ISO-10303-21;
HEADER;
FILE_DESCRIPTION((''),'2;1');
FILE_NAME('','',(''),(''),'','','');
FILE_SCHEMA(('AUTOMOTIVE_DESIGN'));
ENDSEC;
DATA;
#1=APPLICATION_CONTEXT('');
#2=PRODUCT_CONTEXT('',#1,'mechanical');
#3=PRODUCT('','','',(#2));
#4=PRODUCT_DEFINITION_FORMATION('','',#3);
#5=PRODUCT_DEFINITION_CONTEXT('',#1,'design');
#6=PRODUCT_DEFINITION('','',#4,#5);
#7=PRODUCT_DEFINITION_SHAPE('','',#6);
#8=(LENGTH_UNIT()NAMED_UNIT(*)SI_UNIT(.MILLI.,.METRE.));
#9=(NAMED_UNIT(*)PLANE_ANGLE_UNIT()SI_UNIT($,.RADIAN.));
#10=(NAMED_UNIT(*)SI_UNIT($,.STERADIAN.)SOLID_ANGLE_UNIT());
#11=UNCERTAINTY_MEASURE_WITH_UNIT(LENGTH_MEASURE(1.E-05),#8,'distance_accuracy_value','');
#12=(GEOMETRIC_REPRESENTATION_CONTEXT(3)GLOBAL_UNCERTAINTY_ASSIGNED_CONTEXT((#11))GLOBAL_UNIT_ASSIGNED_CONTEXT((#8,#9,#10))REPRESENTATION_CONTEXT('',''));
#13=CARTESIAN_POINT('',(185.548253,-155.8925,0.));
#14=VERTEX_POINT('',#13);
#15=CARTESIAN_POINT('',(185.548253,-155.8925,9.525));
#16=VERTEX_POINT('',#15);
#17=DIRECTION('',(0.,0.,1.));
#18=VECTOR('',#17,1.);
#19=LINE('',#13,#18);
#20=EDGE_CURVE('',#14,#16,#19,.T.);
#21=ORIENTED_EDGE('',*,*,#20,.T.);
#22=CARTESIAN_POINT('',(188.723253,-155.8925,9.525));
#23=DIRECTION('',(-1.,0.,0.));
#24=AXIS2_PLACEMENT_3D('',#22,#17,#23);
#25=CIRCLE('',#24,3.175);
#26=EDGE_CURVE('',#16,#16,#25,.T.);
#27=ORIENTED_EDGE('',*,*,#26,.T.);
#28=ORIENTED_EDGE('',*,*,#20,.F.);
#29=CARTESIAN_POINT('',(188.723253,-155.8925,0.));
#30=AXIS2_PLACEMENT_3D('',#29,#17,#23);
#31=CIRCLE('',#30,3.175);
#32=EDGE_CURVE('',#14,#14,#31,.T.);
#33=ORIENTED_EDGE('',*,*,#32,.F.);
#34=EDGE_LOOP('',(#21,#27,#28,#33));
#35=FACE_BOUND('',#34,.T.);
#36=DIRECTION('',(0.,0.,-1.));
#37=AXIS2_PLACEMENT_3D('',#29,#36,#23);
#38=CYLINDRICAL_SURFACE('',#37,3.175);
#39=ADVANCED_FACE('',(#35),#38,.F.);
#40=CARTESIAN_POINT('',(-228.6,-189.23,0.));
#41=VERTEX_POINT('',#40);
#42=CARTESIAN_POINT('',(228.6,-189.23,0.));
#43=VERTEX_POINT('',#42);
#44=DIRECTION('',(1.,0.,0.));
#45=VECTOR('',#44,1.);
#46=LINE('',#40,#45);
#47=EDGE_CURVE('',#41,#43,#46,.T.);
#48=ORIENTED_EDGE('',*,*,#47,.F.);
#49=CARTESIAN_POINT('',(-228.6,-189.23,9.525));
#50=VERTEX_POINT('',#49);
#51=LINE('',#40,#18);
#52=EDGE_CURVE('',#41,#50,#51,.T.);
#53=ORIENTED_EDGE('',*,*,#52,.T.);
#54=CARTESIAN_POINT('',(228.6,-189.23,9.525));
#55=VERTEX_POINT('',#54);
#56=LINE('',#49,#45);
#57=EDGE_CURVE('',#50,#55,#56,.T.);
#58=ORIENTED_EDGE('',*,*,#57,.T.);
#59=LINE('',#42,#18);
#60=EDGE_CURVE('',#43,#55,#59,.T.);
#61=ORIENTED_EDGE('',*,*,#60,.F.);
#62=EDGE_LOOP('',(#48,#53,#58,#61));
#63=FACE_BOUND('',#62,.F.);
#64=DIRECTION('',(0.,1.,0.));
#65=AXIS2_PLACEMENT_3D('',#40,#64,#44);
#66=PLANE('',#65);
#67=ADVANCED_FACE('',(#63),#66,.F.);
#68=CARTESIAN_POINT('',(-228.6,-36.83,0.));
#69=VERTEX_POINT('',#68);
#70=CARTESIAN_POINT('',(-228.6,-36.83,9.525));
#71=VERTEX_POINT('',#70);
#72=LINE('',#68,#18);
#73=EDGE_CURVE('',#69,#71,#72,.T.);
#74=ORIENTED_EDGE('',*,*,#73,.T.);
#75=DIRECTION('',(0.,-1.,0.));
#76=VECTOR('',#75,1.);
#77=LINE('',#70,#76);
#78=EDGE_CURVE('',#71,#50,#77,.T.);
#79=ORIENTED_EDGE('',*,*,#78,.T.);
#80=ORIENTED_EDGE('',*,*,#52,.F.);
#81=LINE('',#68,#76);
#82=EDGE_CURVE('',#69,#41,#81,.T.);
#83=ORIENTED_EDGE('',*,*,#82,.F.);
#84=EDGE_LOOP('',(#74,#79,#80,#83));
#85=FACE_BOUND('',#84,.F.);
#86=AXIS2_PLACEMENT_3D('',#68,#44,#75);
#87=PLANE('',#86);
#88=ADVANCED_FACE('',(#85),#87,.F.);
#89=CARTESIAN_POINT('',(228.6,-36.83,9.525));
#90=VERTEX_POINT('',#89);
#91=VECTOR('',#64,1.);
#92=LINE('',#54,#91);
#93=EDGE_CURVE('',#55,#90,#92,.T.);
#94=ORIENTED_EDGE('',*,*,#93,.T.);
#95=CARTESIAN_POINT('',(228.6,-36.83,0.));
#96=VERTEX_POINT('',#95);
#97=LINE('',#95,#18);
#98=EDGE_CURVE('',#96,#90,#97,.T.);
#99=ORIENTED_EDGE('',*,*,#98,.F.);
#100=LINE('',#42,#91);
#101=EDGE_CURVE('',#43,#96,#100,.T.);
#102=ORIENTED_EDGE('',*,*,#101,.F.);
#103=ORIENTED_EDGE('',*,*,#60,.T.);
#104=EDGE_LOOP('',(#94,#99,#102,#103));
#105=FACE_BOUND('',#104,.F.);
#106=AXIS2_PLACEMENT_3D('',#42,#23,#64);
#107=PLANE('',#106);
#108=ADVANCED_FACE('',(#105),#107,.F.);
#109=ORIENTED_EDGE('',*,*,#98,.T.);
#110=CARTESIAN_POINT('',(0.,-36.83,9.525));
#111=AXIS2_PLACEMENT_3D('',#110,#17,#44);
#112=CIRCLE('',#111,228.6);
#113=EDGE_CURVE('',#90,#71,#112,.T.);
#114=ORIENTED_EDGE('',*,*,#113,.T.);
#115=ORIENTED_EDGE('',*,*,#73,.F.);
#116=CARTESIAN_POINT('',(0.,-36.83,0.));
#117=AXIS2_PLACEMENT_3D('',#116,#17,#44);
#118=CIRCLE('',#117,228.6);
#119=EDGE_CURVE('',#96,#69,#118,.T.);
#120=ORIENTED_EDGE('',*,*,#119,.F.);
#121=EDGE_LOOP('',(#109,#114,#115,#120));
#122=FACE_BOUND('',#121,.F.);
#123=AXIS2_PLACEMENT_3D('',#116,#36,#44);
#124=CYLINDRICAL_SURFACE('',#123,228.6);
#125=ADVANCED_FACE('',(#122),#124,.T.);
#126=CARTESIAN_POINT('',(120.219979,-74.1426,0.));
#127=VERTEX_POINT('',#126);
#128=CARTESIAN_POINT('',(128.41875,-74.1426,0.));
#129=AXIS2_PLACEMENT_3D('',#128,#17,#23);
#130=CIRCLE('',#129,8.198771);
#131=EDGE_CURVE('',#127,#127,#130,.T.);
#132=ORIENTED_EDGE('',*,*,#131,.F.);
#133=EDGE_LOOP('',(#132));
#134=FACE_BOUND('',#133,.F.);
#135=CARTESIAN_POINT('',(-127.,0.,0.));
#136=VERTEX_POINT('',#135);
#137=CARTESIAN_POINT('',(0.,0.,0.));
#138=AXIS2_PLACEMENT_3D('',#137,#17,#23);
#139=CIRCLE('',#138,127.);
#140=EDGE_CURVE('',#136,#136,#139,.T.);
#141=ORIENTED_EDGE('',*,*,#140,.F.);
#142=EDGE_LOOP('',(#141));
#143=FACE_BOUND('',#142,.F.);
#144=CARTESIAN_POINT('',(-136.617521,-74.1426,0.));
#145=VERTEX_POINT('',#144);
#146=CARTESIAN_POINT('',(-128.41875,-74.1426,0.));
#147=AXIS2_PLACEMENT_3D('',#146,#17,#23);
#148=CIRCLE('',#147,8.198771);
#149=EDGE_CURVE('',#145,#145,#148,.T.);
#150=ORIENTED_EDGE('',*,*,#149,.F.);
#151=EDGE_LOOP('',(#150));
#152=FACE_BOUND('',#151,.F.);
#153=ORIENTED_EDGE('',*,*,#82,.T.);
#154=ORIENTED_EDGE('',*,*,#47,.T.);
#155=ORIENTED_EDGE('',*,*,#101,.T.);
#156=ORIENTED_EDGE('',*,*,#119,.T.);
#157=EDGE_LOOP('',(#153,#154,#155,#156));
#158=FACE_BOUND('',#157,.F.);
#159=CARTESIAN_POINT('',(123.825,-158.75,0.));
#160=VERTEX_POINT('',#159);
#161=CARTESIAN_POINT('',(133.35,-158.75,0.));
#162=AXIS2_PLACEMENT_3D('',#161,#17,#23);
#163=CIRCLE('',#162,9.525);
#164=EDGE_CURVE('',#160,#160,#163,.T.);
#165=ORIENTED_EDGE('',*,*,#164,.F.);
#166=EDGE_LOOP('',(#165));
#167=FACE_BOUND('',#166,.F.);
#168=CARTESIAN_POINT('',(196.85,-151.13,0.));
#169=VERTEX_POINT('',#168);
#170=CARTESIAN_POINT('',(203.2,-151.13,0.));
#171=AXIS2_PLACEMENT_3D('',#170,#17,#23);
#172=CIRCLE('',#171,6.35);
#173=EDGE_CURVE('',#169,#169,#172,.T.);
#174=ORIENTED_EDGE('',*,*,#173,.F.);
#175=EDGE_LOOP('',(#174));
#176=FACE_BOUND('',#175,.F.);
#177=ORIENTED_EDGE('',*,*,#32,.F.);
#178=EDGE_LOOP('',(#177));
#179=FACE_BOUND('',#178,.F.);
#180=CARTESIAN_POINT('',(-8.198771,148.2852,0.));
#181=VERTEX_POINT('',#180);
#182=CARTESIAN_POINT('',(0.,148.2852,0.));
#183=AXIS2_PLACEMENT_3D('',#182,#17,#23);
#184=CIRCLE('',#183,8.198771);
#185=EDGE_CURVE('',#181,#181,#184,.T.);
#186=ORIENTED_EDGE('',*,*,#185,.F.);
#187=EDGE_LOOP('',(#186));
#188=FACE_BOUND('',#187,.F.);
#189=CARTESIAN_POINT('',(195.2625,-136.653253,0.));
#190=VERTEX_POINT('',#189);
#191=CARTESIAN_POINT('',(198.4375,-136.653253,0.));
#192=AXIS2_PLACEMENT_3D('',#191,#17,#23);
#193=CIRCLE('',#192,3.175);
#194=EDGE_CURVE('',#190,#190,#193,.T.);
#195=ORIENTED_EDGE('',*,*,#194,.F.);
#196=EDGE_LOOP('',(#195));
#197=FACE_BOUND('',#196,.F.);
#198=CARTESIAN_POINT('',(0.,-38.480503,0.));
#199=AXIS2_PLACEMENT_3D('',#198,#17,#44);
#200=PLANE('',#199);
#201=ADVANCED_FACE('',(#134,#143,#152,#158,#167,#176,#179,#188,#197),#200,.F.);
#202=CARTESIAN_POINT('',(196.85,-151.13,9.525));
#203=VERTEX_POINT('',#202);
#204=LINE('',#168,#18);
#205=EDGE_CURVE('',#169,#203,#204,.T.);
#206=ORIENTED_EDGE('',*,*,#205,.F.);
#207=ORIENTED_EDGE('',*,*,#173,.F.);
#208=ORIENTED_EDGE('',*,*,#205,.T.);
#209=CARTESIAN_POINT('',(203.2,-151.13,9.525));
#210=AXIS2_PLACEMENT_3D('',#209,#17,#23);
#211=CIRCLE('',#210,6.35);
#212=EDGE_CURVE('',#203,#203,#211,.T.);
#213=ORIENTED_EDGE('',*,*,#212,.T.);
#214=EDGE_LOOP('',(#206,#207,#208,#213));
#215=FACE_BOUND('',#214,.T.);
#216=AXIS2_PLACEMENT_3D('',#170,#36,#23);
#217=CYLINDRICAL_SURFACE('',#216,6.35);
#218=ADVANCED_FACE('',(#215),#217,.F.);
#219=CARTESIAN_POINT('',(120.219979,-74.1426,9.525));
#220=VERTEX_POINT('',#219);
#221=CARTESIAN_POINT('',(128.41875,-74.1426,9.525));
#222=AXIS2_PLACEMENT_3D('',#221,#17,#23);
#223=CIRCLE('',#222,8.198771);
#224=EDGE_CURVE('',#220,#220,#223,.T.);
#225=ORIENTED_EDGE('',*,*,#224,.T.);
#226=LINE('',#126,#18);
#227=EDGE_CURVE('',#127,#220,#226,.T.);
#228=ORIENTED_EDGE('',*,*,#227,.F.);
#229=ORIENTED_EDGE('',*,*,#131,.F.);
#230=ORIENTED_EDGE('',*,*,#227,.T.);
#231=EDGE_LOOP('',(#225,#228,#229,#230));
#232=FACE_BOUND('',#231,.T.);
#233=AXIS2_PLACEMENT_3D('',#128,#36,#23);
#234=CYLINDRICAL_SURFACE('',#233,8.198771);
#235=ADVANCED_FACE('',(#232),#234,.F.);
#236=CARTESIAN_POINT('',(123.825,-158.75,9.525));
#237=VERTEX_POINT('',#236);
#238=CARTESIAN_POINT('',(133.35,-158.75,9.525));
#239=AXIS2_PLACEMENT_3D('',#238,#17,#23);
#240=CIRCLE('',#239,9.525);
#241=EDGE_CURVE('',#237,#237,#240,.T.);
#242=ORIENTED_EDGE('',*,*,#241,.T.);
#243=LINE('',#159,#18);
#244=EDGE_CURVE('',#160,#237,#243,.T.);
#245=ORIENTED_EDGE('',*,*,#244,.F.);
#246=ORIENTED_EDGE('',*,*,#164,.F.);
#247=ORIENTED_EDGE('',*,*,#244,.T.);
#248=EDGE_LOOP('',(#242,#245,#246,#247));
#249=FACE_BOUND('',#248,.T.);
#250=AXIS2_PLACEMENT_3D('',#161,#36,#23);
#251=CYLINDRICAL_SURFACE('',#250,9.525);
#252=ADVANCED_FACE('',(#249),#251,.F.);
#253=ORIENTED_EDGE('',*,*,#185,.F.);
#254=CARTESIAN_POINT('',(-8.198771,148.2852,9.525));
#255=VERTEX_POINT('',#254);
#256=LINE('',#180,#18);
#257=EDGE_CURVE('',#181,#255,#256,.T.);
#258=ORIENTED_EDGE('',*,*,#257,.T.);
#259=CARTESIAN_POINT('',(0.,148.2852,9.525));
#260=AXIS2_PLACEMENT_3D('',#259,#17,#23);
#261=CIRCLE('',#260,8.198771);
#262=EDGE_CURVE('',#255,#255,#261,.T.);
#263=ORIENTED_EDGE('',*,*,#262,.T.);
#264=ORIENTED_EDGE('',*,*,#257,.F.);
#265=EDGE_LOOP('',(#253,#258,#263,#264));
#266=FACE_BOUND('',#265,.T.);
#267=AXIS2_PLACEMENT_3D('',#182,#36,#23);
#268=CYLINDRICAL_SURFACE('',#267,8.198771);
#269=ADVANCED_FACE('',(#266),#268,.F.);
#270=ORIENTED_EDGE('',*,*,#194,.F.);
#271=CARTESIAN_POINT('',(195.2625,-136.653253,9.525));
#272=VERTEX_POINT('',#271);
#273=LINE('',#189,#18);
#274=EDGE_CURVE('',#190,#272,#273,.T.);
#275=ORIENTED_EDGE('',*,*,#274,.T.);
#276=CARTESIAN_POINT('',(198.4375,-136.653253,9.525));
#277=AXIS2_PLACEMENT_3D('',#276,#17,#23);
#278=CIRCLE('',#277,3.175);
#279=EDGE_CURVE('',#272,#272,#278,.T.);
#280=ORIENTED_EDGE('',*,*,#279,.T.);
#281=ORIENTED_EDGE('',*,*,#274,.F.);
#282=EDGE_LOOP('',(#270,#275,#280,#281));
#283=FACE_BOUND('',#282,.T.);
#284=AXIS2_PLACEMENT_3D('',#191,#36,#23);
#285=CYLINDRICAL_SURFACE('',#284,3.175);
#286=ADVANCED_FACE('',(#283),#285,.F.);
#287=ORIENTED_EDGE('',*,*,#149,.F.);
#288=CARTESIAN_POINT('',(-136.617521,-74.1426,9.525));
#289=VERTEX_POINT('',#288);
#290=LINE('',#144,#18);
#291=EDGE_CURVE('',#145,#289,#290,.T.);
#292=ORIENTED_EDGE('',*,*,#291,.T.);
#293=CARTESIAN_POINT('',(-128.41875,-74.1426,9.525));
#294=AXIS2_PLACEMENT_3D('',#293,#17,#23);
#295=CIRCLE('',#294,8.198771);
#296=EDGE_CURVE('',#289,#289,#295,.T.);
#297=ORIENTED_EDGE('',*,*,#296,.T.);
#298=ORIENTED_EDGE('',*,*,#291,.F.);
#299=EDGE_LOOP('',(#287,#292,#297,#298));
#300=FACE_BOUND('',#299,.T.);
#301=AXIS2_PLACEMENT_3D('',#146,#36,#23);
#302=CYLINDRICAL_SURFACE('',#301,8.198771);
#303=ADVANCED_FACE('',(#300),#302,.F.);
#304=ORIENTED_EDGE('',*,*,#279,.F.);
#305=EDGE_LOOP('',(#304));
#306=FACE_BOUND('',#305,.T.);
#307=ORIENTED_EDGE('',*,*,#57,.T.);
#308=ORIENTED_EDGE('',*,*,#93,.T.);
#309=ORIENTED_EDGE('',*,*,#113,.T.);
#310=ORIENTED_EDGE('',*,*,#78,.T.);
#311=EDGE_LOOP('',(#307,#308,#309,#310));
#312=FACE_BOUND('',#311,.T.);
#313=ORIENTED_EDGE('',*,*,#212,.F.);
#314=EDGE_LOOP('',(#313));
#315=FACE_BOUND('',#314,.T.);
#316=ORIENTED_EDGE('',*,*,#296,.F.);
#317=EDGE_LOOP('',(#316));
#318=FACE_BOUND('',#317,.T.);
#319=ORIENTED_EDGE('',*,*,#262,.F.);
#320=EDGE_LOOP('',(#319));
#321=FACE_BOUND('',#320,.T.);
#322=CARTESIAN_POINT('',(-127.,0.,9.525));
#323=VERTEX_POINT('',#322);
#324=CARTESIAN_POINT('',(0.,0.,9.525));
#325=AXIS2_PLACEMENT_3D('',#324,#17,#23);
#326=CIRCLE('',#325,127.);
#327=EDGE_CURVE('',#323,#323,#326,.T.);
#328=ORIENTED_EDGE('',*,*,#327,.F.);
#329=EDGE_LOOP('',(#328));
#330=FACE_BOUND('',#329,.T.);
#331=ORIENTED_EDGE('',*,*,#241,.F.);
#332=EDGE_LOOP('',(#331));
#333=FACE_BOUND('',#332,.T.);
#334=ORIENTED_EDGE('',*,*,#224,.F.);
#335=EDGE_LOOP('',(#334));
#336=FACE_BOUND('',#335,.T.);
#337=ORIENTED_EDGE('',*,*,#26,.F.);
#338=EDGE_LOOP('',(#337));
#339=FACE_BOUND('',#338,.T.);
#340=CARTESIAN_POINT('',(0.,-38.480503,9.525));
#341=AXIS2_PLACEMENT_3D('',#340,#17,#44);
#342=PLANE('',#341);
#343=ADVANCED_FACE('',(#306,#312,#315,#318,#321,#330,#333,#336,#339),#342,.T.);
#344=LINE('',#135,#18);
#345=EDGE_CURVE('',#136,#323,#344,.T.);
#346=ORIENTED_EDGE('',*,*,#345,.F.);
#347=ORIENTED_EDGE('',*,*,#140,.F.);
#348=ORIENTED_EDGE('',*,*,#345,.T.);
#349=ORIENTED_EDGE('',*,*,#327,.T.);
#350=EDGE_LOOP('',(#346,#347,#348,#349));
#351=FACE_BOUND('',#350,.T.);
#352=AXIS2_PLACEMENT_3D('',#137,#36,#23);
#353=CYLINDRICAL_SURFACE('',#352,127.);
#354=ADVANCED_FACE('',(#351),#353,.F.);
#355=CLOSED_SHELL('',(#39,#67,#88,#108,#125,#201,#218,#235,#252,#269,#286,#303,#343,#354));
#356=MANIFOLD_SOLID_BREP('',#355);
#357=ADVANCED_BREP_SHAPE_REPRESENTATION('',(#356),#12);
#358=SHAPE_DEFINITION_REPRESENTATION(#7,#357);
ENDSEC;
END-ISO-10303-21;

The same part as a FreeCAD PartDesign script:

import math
import FreeCAD as App
import Part
import Sketcher
Q = App.Units.Quantity

doc = App.newDocument("Part")
body = doc.addObject("PartDesign::Body", "Body")

# Sketch on XY plane
sketch1 = body.newObject("Sketcher::SketchObject", "Sketch")
sketch1.AttachmentSupport = (doc.getObject("XY_Plane"), [""])
sketch1.MapMode = "FlatFace"
sketch1.addGeometry(Part.LineSegment(App.Vector(-228.6, -36.83, 0), App.Vector(-228.6, -189.23, 0)), False)
sketch1.addGeometry(Part.LineSegment(App.Vector(-228.6, -189.23, 0), App.Vector(228.6, -189.23, 0)), False)
sketch1.addGeometry(Part.LineSegment(App.Vector(228.6, -189.23, 0), App.Vector(228.6, -36.83, 0)), False)
sketch1.addGeometry(Part.ArcOfCircle(Part.Circle(App.Vector(0, -36.83, 0), App.Vector(0, 0, 1), 228.6), math.radians(0), math.radians(180)), False)
sketch1.addGeometry(Part.Circle(App.Vector(-128.41875, -74.1426, 0), App.Vector(0, 0, 1), 8.198771), False)
sketch1.addGeometry(Part.Circle(App.Vector(133.35, -158.75, 0), App.Vector(0, 0, 1), 9.525), False)
sketch1.addGeometry(Part.Circle(App.Vector(188.723253, -155.8925, 0), App.Vector(0, 0, 1), 3.175), False)
sketch1.addGeometry(Part.Circle(App.Vector(203.2, -151.13, 0), App.Vector(0, 0, 1), 6.35), False)
sketch1.addGeometry(Part.Circle(App.Vector(198.4375, -136.653253, 0), App.Vector(0, 0, 1), 3.175), False)
sketch1.addGeometry(Part.Circle(App.Vector(128.41875, -74.1426, 0), App.Vector(0, 0, 1), 8.198771), False)
sketch1.addGeometry(Part.Circle(App.Vector(0, 0, 0), App.Vector(0, 0, 1), 127), False)
sketch1.addGeometry(Part.Circle(App.Vector(0, 148.2852, 0), App.Vector(0, 0, 1), 8.198771), False)
sketch1.addConstraint(Sketcher.Constraint("Coincident", 0, 2, 1, 1))
sketch1.addConstraint(Sketcher.Constraint("Coincident", 1, 2, 2, 1))
sketch1.addConstraint(Sketcher.Constraint("Tangent", 2, 2, 3, 1))
sketch1.addConstraint(Sketcher.Constraint("Tangent", 3, 2, 0, 1))
sketch1.addConstraint(Sketcher.Constraint("Vertical", 0))
sketch1.addConstraint(Sketcher.Constraint("Horizontal", 1))
sketch1.addConstraint(Sketcher.Constraint("Vertical", 2))
sketch1.addConstraint(Sketcher.Constraint("Coincident", 10, 3, -1, 1))
sketch1.addConstraint(Sketcher.Constraint("Equal", 6, 8))
sketch1.addConstraint(Sketcher.Constraint("Equal", 4, 9))
sketch1.addConstraint(Sketcher.Constraint("Equal", 9, 11))
sketch1.addConstraint(Sketcher.Constraint("Symmetric", 4, 3, 9, 3, -2))
sketch1.addConstraint(Sketcher.Constraint("PointOnObject", 3, 3, -2))
sketch1.addConstraint(Sketcher.Constraint("PointOnObject", 11, 3, -2))
sketch1.addConstraint(Sketcher.Constraint("Diameter", 10, Q("10 in")))
sketch1.addConstraint(Sketcher.Constraint("Radius", 3, Q("9 in")))
sketch1.addConstraint(Sketcher.Constraint("Diameter", 7, Q("0.5 in")))
sketch1.addConstraint(Sketcher.Constraint("Diameter", 5, Q("0.75 in")))
sketch1.addConstraint(Sketcher.Constraint("Diameter", 6, Q("0.25 in")))
sketch1.addConstraint(Sketcher.Constraint("DistanceY", 0, 2, 0, 1, Q("6 in")))
sketch1.addConstraint(Sketcher.Constraint("DistanceX", -1, 1, 7, 3, Q("8 in")))
sketch1.addConstraint(Sketcher.Constraint("DistanceY", 5, 3, 3, 3, Q("4.8 in")))
sketch1.addConstraint(Sketcher.Constraint("DistanceY", 5, 3, 7, 3, Q("0.3 in")))
sketch1.addConstraint(Sketcher.Constraint("DistanceY", 3, 3, -1, 1, Q("1.45 in")))
sketch1.addConstraint(Sketcher.Constraint("DistanceX", -1, 1, 5, 3, Q("5.25 in")))
sketch1.addConstraint(Sketcher.Constraint("Diameter", 4, 16.397542))
sketch1.addConstraint(Sketcher.Constraint("DistanceY", 4, 3, -1, 1, Q("2.919 in")))
sketch1.addConstraint(Sketcher.Constraint("DistanceX", -1, 1, 8, 3, Q("7.8125 in")))
sketch1.addConstraint(Sketcher.Constraint("DistanceY", -1, 1, 11, 3, Q("5.838 in")))
sketch1.addConstraint(Sketcher.Constraint("DistanceY", 6, 3, 3, 3, Q("4.6875 in")))
sketch1.addConstraint(Sketcher.Constraint("DistanceX", 4, 3, -1, 1, 128.41875))
sketch1.addConstraint(Sketcher.Constraint("DistanceX", -1, 1, 6, 3, 188.723253))
sketch1.addConstraint(Sketcher.Constraint("DistanceY", 8, 3, -1, 1, 136.653253))
pad1 = body.newObject("PartDesign::Pad", "Pad")
pad1.Profile = sketch1
pad1.Length = Q("0.375 in")

doc.recompute()
